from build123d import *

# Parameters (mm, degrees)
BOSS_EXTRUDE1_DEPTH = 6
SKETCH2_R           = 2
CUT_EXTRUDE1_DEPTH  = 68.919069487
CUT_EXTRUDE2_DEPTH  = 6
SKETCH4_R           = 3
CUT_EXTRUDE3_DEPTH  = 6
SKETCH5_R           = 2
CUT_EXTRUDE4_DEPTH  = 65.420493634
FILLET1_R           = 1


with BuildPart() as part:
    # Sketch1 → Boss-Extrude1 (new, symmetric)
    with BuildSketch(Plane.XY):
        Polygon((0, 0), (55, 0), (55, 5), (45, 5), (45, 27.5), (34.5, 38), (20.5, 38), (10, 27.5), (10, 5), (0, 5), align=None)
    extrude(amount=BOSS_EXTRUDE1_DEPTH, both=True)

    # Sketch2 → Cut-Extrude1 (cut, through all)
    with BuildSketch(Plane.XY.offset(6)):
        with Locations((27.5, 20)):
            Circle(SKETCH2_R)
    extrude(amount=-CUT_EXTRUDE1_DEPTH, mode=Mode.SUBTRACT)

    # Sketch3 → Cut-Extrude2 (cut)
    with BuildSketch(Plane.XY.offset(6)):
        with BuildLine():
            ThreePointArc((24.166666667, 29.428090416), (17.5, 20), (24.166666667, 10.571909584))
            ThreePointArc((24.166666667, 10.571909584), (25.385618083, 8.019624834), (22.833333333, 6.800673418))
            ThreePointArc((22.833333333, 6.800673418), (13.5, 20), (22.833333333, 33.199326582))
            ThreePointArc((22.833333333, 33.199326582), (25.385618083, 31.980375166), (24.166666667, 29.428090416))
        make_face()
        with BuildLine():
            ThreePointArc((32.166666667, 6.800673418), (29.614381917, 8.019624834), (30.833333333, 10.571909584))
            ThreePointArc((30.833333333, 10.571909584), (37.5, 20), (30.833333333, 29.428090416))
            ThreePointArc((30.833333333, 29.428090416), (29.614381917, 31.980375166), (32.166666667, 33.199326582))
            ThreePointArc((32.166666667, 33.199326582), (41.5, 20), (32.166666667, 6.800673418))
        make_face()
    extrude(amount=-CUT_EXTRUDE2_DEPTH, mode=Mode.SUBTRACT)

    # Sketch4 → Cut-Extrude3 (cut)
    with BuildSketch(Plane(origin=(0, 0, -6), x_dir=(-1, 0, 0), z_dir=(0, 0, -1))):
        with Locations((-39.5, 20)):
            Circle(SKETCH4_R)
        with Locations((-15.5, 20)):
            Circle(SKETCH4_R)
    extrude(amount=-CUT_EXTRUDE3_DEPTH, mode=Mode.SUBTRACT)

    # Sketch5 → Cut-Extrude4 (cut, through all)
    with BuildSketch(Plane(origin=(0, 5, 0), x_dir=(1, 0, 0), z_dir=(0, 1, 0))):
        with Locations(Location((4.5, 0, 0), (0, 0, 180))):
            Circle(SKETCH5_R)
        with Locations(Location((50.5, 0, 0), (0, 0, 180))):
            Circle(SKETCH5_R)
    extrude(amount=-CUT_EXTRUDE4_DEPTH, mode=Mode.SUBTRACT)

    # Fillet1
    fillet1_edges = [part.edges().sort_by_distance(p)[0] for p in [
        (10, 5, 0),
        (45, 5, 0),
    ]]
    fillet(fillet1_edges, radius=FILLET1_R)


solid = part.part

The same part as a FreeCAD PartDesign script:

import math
import FreeCAD as App
import Part
import Sketcher
Q = App.Units.Quantity


def edges_at(feature, points):
    """Names of the edges that pass closest to the given points."""
    edges = feature.Shape.Edges
    near = lambda p: min(range(len(edges)), key=lambda i: edges[i].distToShape(Part.Vertex(*p))[0])
    return sorted({f"Edge{near(p) + 1}" for p in points})


def add_polygon(sketch, points):
    """Adds a closed chain of lines whose ends are joined by coincident constraints."""
    first, n = sketch.GeometryCount, len(points)
    for a, b in zip(points, points[1:] + points[:1]):
        sketch.addGeometry(Part.LineSegment(App.Vector(*a, 0), App.Vector(*b, 0)), False)
    for i in range(n):
        sketch.addConstraint(Sketcher.Constraint("Coincident", first + i, 2, first + (i + 1) % n, 1))

doc = App.newDocument("Part")
body = doc.addObject("PartDesign::Body", "Body")

sketch1 = body.newObject("Sketcher::SketchObject", "Sketch")
sketch1.AttachmentSupport = (doc.getObject("XY_Plane"), [""])
sketch1.MapMode = "FlatFace"
add_polygon(sketch1, [(0, 0), (55, 0), (55, 5), (45, 5), (45, 27.5), (34.5, 38), (20.5, 38), (10, 27.5), (10, 5), (0, 5)])
sketch1.addConstraint(Sketcher.Constraint("Horizontal", 0))
sketch1.addConstraint(Sketcher.Constraint("Vertical", 1))
sketch1.addConstraint(Sketcher.Constraint("Horizontal", 2))
sketch1.addConstraint(Sketcher.Constraint("Vertical", 3))
sketch1.addConstraint(Sketcher.Constraint("Horizontal", 5))
sketch1.addConstraint(Sketcher.Constraint("Vertical", 7))
sketch1.addConstraint(Sketcher.Constraint("Horizontal", 8))
sketch1.addConstraint(Sketcher.Constraint("Vertical", 9))
sketch1.addConstraint(Sketcher.Constraint("Coincident", 9, 2, -1, 1))
sketch1.addConstraint(Sketcher.Constraint("Perpendicular", 4, 6))
sketch1.addConstraint(Sketcher.Constraint("Horizontal", 3, 2, 6, 2))
sketch1.addConstraint(Sketcher.Constraint("Horizontal", 2, 2, 7, 2))
sketch1.addConstraint(Sketcher.Constraint("Equal", 2, 8))
sketch1.addConstraint(Sketcher.Constraint("Equal", 4, 6))
sketch1.addConstraint(Sketcher.Constraint("DistanceX", 0, 1, 0, 2, Q("55 mm")))
sketch1.addConstraint(Sketcher.Constraint("DistanceX", 2, 2, 2, 1, Q("10 mm")))
sketch1.addConstraint(Sketcher.Constraint("DistanceX", 5, 2, 5, 1, Q("14 mm")))
sketch1.addConstraint(Sketcher.Constraint("DistanceY", 1, 1, 1, 2, Q("5 mm")))
sketch1.addConstraint(Sketcher.Constraint("DistanceY", 3, 1, 3, 2, Q("22.5 mm")))
pad1 = body.newObject("PartDesign::Pad", "Pad")
pad1.Profile = sketch1
pad1.Length = 12
pad1.Midplane = True

sketch2 = body.newObject("Sketcher::SketchObject", "Sketch001")
sketch2.AttachmentSupport = (doc.getObject("XY_Plane"), [""])
sketch2.MapMode = "FlatFace"
sketch2.AttachmentOffset = App.Placement(App.Vector(0, 0, 6), App.Rotation())
sketch2.addGeometry(Part.Circle(App.Vector(27.5, 20, 0), App.Vector(0, 0, 1), 2), False)
sketch2.addConstraint(Sketcher.Constraint("Diameter", 0, Q("4 mm")))
sketch2.addConstraint(Sketcher.Constraint("DistanceY", -1, 1, 0, 3, Q("20 mm")))
sketch2.addConstraint(Sketcher.Constraint("DistanceX", -1, 1, 0, 3, Q("27.5 mm")))
pocket1 = body.newObject("PartDesign::Pocket", "Pocket")
pocket1.Profile = sketch2
pocket1.Type = "ThroughAll"

sketch3 = body.newObject("Sketcher::SketchObject", "Sketch002")
sketch3.AttachmentSupport = (doc.getObject("XY_Plane"), [""])
sketch3.MapMode = "FlatFace"
sketch3.AttachmentOffset = App.Placement(App.Vector(0, 0, 6), App.Rotation())
sketch3.addGeometry(Part.ArcOfCircle(Part.Circle(App.Vector(27.5, 20, 0), App.Vector(0, 0, 1), 10), math.radians(109.471221), math.radians(250.528779)), False)
sketch3.addGeometry(Part.ArcOfCircle(Part.Circle(App.Vector(23.5, 31.313708, 0), App.Vector(0, 0, 1), 2), math.radians(-70.528779), math.radians(109.471221)), False)
sketch3.addGeometry(Part.ArcOfCircle(Part.Circle(App.Vector(27.5, 20, 0), App.Vector(0, 0, 1), 14), math.radians(109.471221), math.radians(250.528779)), False)
sketch3.addGeometry(Part.ArcOfCircle(Part.Circle(App.Vector(23.5, 8.686292, 0), App.Vector(0, 0, 1), 2), math.radians(-109.471221), math.radians(70.528779)), False)
sketch3.addGeometry(Part.ArcOfCircle(Part.Circle(App.Vector(31.5, 8.686292, 0), App.Vector(0, 0, 1), 2), math.radians(109.471221), math.radians(289.471221)), False)
sketch3.addGeometry(Part.ArcOfCircle(Part.Circle(App.Vector(27.5, 20, 0), App.Vector(0, 0, 1), 14), math.radians(-70.528779), math.radians(70.528779)), False)
sketch3.addGeometry(Part.ArcOfCircle(Part.Circle(App.Vector(31.5, 31.313708, 0), App.Vector(0, 0, 1), 2), math.radians(70.528779), math.radians(250.528779)), False)
sketch3.addGeometry(Part.ArcOfCircle(Part.Circle(App.Vector(27.5, 20, 0), App.Vector(0, 0, 1), 10), math.radians(-70.528779), math.radians(70.528779)), False)
sketch3.addConstraint(Sketcher.Constraint("Tangent", 0, 1, 1, 1))
sketch3.addConstraint(Sketcher.Constraint("Tangent", 1, 2, 2, 1))
sketch3.addConstraint(Sketcher.Constraint("Tangent", 2, 2, 3, 1))
sketch3.addConstraint(Sketcher.Constraint("Tangent", 3, 2, 0, 2))
sketch3.addConstraint(Sketcher.Constraint("Tangent", 4, 2, 5, 1))
sketch3.addConstraint(Sketcher.Constraint("Tangent", 5, 2, 6, 1))
sketch3.addConstraint(Sketcher.Constraint("Tangent", 6, 2, 7, 2))
sketch3.addConstraint(Sketcher.Constraint("Tangent", 7, 1, 4, 1))
sketch3.addConstraint(Sketcher.Constraint("Coincident", 2, 3, 0, 3))
sketch3.addConstraint(Sketcher.Constraint("Coincident", 5, 3, 0, 3))
sketch3.addConstraint(Sketcher.Constraint("Coincident", 7, 3, 0, 3))
sketch3.addConstraint(Sketcher.Constraint("Equal", 3, 4))
sketch3.addConstraint(Sketcher.Constraint("Equal", 2, 5))
sketch3.addConstraint(Sketcher.Constraint("Horizontal", 3, 3, 4, 3))
sketch3.addConstraint(Sketcher.Constraint("Horizontal", 1, 3, 6, 3))
sketch3.addConstraint(Sketcher.Constraint("Vertical", 1, 3, 3, 3))
sketch3.addConstraint(Sketcher.Constraint("Radius", 0, Q("10 mm")))
sketch3.addConstraint(Sketcher.Constraint("Radius", 1, Q("2 mm")))
sketch3.addConstraint(Sketcher.Constraint("DistanceY", -1, 1, 0, 3, Q("20 mm")))
sketch3.addConstraint(Sketcher.Constraint("DistanceX", 1, 3, 0, 3, Q("4 mm")))
sketch3.addConstraint(Sketcher.Constraint("DistanceX", -1, 1, 0, 3, Q("27.5 mm")))
pocket2 = body.newObject("PartDesign::Pocket", "Pocket001")
pocket2.Profile = sketch3
pocket2.Length = 6

sketch4 = body.newObject("Sketcher::SketchObject", "Sketch003")
sketch4.AttachmentSupport = (doc.getObject("XY_Plane"), [""])
sketch4.MapMode = "FlatFace"
sketch4.AttachmentOffset = App.Placement(App.Vector(0, 0, -6), App.Rotation())
sketch4.addGeometry(Part.Circle(App.Vector(39.5, 20, 0), App.Vector(0, 0, 1), 3), False)
sketch4.addGeometry(Part.Circle(App.Vector(15.5, 20, 0), App.Vector(0, 0, 1), 3), False)
sketch4.addConstraint(Sketcher.Constraint("Equal", 0, 1))
sketch4.addConstraint(Sketcher.Constraint("Horizontal", 0, 3, 1, 3))
sketch4.addConstraint(Sketcher.Constraint("Diameter", 0, Q("6 mm")))
sketch4.addConstraint(Sketcher.Constraint("DistanceY", -1, 1, 0, 3, Q("20 mm")))
sketch4.addConstraint(Sketcher.Constraint("DistanceX", 1, 3, 0, 3, Q("24 mm")))
sketch4.addConstraint(Sketcher.Constraint("DistanceX", -1, 1, 0, 3, Q("39.5 mm")))
pocket3 = body.newObject("PartDesign::Pocket", "Pocket002")
pocket3.Profile = sketch4
pocket3.Length = 6
pocket3.Reversed = True

sketch5 = body.newObject("Sketcher::SketchObject", "Sketch004")
sketch5.AttachmentSupport = (doc.getObject("XZ_Plane"), [""])
sketch5.MapMode = "FlatFace"
sketch5.AttachmentOffset = App.Placement(App.Vector(0, 0, -5), App.Rotation())
sketch5.addGeometry(Part.Circle(App.Vector(4.5, 0, 0), App.Vector(0, 0, 1), 2), False)
sketch5.addGeometry(Part.Circle(App.Vector(50.5, 0, 0), App.Vector(0, 0, 1), 2), False)
sketch5.addConstraint(Sketcher.Constraint("Equal", 0, 1))
sketch5.addConstraint(Sketcher.Constraint("PointOnObject", 0, 3, -1))
sketch5.addConstraint(Sketcher.Constraint("PointOnObject", 1, 3, -1))
sketch5.addConstraint(Sketcher.Constraint("Diameter", 0, Q("4 mm")))
sketch5.addConstraint(Sketcher.Constraint("DistanceX", 0, 3, 1, 3, Q("46 mm")))
sketch5.addConstraint(Sketcher.Constraint("DistanceX", -1, 1, 0, 3, Q("4.5 mm")))
pocket4 = body.newObject("PartDesign::Pocket", "Pocket003")
pocket4.Profile = sketch5
pocket4.Type = "ThroughAll"
pocket4.Reversed = True
doc.recompute()

fillet = body.newObject("PartDesign::Fillet", "Fillet")
fillet.Base = (pocket4, edges_at(pocket4, [(10, 5, 0), (45, 5, 0)]))
fillet.Radius = 1

doc.recompute()
